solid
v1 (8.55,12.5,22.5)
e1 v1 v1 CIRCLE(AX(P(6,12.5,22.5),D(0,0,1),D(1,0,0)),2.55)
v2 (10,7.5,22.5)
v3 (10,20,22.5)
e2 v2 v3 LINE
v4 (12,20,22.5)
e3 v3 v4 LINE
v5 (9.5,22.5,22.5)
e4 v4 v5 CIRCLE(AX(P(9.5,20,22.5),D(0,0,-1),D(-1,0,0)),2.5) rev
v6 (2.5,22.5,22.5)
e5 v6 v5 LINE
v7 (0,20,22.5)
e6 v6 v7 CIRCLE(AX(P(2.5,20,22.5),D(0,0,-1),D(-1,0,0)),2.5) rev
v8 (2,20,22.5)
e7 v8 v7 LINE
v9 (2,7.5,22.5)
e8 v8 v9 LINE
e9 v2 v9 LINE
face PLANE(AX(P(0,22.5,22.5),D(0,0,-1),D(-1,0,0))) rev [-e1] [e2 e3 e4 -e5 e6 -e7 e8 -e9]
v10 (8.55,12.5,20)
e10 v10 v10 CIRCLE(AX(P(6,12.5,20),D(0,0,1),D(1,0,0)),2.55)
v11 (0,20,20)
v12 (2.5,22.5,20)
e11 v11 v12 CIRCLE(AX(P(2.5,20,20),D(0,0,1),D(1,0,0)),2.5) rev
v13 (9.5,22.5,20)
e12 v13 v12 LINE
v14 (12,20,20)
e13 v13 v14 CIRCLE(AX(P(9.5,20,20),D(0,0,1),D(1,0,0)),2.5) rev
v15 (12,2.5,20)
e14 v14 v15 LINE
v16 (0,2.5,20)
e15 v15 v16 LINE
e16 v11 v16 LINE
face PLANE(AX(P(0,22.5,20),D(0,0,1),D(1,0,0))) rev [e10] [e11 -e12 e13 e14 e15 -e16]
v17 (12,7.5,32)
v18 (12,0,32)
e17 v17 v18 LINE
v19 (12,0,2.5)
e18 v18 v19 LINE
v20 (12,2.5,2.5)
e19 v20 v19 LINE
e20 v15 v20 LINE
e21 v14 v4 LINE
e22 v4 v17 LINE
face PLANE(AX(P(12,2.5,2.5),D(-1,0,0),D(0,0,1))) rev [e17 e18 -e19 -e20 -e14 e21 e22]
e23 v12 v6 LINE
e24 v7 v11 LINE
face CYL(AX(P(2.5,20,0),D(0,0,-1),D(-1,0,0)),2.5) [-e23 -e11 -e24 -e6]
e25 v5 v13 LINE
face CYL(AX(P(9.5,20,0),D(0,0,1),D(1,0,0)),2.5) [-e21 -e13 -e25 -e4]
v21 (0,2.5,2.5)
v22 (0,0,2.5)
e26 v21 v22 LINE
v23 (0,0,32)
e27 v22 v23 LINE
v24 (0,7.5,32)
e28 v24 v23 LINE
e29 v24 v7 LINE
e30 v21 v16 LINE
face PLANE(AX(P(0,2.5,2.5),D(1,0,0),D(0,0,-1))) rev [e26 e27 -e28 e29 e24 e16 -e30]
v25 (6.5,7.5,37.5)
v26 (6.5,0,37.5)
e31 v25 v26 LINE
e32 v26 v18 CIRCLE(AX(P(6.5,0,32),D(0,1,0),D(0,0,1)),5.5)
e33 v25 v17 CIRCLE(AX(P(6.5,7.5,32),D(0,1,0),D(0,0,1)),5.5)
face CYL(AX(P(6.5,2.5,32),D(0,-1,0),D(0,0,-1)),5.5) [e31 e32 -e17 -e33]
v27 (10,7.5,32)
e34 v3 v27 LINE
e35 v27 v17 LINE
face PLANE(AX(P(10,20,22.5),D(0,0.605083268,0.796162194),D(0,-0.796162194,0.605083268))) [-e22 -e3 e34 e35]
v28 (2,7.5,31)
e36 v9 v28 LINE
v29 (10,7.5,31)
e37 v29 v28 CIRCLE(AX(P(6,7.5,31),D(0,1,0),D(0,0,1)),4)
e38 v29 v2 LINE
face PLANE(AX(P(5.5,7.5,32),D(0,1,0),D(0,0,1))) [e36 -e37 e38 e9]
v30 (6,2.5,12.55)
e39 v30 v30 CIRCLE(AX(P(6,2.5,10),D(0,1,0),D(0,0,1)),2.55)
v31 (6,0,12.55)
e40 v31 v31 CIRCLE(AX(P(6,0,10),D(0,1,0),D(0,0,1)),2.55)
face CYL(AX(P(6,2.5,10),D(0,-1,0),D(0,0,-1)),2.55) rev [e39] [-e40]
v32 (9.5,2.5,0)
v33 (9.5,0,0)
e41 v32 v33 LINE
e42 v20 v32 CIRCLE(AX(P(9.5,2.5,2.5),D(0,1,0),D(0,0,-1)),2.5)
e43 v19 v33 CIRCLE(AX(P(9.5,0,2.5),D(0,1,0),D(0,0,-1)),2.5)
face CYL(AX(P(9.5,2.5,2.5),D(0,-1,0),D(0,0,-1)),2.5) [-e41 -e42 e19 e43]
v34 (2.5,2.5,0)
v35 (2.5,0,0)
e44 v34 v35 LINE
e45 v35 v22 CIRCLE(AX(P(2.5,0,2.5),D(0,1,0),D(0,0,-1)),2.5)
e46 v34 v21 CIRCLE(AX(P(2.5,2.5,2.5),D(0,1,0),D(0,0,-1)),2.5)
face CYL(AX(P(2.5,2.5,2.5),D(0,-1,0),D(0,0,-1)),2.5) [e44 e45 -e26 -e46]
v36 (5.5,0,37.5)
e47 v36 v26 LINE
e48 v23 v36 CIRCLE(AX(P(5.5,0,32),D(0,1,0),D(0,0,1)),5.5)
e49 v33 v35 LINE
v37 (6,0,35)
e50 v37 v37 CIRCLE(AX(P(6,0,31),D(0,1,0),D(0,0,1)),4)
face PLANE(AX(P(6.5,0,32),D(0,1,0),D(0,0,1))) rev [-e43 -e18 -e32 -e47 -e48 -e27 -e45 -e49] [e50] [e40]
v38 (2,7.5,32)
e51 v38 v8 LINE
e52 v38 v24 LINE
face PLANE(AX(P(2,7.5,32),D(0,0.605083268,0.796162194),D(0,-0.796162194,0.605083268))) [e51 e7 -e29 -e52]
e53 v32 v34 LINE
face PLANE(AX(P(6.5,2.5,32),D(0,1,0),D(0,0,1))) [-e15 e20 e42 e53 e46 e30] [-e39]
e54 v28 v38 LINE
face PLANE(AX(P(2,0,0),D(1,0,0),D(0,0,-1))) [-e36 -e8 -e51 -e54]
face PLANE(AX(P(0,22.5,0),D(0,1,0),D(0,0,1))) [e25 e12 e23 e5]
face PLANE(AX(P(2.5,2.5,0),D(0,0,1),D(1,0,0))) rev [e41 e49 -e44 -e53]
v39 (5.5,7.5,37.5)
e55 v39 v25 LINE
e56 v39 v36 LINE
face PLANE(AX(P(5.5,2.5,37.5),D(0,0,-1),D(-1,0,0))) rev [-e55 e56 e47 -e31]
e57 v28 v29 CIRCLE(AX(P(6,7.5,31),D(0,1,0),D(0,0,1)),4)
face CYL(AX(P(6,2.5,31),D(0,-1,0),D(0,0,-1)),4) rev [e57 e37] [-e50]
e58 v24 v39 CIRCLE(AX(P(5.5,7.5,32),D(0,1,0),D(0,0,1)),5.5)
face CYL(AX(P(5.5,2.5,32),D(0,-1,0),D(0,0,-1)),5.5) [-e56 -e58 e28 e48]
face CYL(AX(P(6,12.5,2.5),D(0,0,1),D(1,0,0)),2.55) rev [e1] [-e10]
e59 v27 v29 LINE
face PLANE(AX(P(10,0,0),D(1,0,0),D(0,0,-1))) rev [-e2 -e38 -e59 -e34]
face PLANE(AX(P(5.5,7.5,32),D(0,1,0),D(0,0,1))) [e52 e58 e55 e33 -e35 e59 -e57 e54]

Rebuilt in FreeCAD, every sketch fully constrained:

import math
import FreeCAD as App
import Part
import Sketcher
from FreeCAD import Vector


def edges_at(feature, points):
    """Names of the edges that pass closest to the given points."""
    edges = feature.Shape.Edges
    near = lambda p: min(range(len(edges)), key=lambda i: edges[i].distToShape(Part.Vertex(*p))[0])
    return sorted({f"Edge{near(p) + 1}" for p in points})

doc = App.newDocument("Part")
body = doc.addObject("PartDesign::Body", "Body")

sketch1 = body.newObject("Sketcher::SketchObject", "Sketch")
sketch1.AttachmentSupport = (doc.getObject("XZ_Plane"), [""])
sketch1.MapMode = "FlatFace"
sketch1.addGeometry([
    Part.LineSegment(Vector(9.5, 0, 0), Vector(2.5, 0, 0)),
    Part.ArcOfCircle(Part.Circle(Vector(2.5, 2.5, 0), Vector(0, 0, 1), 2.5), math.radians(180), math.radians(270)),
    Part.LineSegment(Vector(0, 2.5, 0), Vector(0, 32, 0)),
    Part.ArcOfCircle(Part.Circle(Vector(5.5, 32, 0), Vector(0, 0, 1), 5.5), math.radians(90), math.radians(180)),
    Part.LineSegment(Vector(5.5, 37.5, 0), Vector(6.5, 37.5, 0)),
    Part.ArcOfCircle(Part.Circle(Vector(6.5, 32, 0), Vector(0, 0, 1), 5.5), math.radians(0), math.radians(90)),
    Part.LineSegment(Vector(12, 32, 0), Vector(12, 2.5, 0)),
    Part.ArcOfCircle(Part.Circle(Vector(9.5, 2.5, 0), Vector(0, 0, 1), 2.5), math.radians(-90), math.radians(0)),
    Part.Circle(Vector(6, 31, 0), Vector(0, 0, 1), 4),
    Part.Circle(Vector(6, 10, 0), Vector(0, 0, 1), 2.55),
], False)
sketch1.addConstraint([
    Sketcher.Constraint("Tangent", 0, 2, 1, 2),
    Sketcher.Constraint("Tangent", 1, 1, 2, 1),
    Sketcher.Constraint("Tangent", 2, 2, 3, 2),
    Sketcher.Constraint("Tangent", 3, 1, 4, 1),
    Sketcher.Constraint("Tangent", 4, 2, 5, 2),
    Sketcher.Constraint("Tangent", 5, 1, 6, 1),
    Sketcher.Constraint("Tangent", 6, 2, 7, 2),
    Sketcher.Constraint("Tangent", 7, 1, 0, 1),
    Sketcher.Constraint("Horizontal", 0),
    Sketcher.Constraint("Vertical", 2),
    Sketcher.Constraint("Horizontal", 4),
    Sketcher.Constraint("Vertical", 6),
    Sketcher.Constraint("Equal", 3, 5),
    Sketcher.Constraint("Equal", 1, 7),
    Sketcher.Constraint("PointOnObject", 0, 2, -1),
    Sketcher.Constraint("PointOnObject", 1, 1, -2),
    Sketcher.Constraint("Vertical", 8, 3, 9, 3),
    Sketcher.Constraint("Diameter", 8, 8.0),
    Sketcher.Constraint("Diameter", 9, 5.1),
    Sketcher.Constraint("Radius", 1, 2.5),
    Sketcher.Constraint("Radius", 3, 5.5),
    Sketcher.Constraint("DistanceX", 0, 2, 0, 1, 7.0),
    Sketcher.Constraint("DistanceY", 2, 1, 2, 2, 29.5),
    Sketcher.Constraint("DistanceX", -1, 1, 8, 3, 6.0),
    Sketcher.Constraint("DistanceY", -1, 1, 8, 3, 31.0),
    Sketcher.Constraint("DistanceY", -1, 1, 9, 3, 10.0),
])
pad1 = body.newObject("PartDesign::Pad", "Pad")
pad1.Profile = sketch1
pad1.Length = 2.5
pad1.Reversed = True

sketch2 = body.newObject("Sketcher::SketchObject", "Sketch001")
sketch2.AttachmentSupport = (doc.getObject("XZ_Plane"), [""])
sketch2.MapMode = "FlatFace"
sketch2.AttachmentOffset = App.Placement(Vector(0, 0, -2.5), App.Rotation())
sketch2.addGeometry([
    Part.LineSegment(Vector(0, 20, 0), Vector(0, 22.5, 0)),
    Part.LineSegment(Vector(0, 22.5, 0), Vector(12, 22.5, 0)),
    Part.LineSegment(Vector(12, 22.5, 0), Vector(12, 20, 0)),
    Part.LineSegment(Vector(12, 20, 0), Vector(0, 20, 0)),
], False)
sketch2.addConstraint([
    Sketcher.Constraint("Coincident", 0, 2, 1, 1),
    Sketcher.Constraint("Coincident", 1, 2, 2, 1),
    Sketcher.Constraint("Coincident", 2, 2, 3, 1),
    Sketcher.Constraint("Coincident", 3, 2, 0, 1),
    Sketcher.Constraint("Vertical", 0),
    Sketcher.Constraint("Horizontal", 1),
    Sketcher.Constraint("Vertical", 2),
    Sketcher.Constraint("Horizontal", 3),
    Sketcher.Constraint("PointOnObject", 0, 2, -2),
    Sketcher.Constraint("DistanceX", 1, 1, 1, 2, 12.0),
    Sketcher.Constraint("DistanceY", 0, 1, 0, 2, 2.5),
    Sketcher.Constraint("DistanceY", -1, 1, 2, 2, 20.0),
])
pad2 = body.newObject("PartDesign::Pad", "Pad001")
pad2.Profile = sketch2
pad2.Length = 20
pad2.Reversed = True

sketch3 = body.newObject("Sketcher::SketchObject", "Sketch002")
sketch3.AttachmentSupport = (doc.getObject("XY_Plane"), [""])
sketch3.MapMode = "FlatFace"
sketch3.AttachmentOffset = App.Placement(Vector(0, 0, 22.5), App.Rotation())
sketch3.addGeometry(Part.Circle(Vector(6, 12.5, 0), Vector(0, 0, 1), 2.55), False)
sketch3.addConstraint([
    Sketcher.Constraint("Diameter", 0, 5.1),
    Sketcher.Constraint("DistanceX", -1, 1, 0, 3, 6.0),
    Sketcher.Constraint("DistanceY", -1, 1, 0, 3, 12.5),
])
pocket1 = body.newObject("PartDesign::Pocket", "Pocket")
pocket1.Profile = sketch3
pocket1.Length = 20
doc.recompute()

fillet = body.newObject("PartDesign::Fillet", "Fillet")
fillet.Base = (pocket1, edges_at(pocket1, [(0, 22.5, 21.25), (12, 22.5, 21.25)]))
fillet.Radius = 2.5

sketch4 = body.newObject("Sketcher::SketchObject", "Sketch003")
sketch4.AttachmentSupport = (doc.getObject("XZ_Plane"), [""])
sketch4.MapMode = "FlatFace"
sketch4.AttachmentOffset = App.Placement(Vector(0, 0, -2.5), App.Rotation())
sketch4.addGeometry([
    Part.LineSegment(Vector(12, 22.5, 0), Vector(0, 22.5, 0)),
    Part.LineSegment(Vector(0, 22.5, 0), Vector(0, 32, 0)),
    Part.ArcOfCircle(Part.Circle(Vector(5.5, 32, 0), Vector(0, 0, 1), 5.5), math.radians(90), math.radians(180)),
    Part.LineSegment(Vector(5.5, 37.5, 0), Vector(6.5, 37.5, 0)),
    Part.ArcOfCircle(Part.Circle(Vector(6.5, 32, 0), Vector(0, 0, 1), 5.5), math.radians(0), math.radians(90)),
    Part.LineSegment(Vector(12, 32, 0), Vector(12, 22.5, 0)),
], False)
sketch4.addConstraint([
    Sketcher.Constraint("Coincident", 0, 2, 1, 1),
    Sketcher.Constraint("Tangent", 1, 2, 2, 2),
    Sketcher.Constraint("Tangent", 2, 1, 3, 1),
    Sketcher.Constraint("Tangent", 3, 2, 4, 2),
    Sketcher.Constraint("Tangent", 4, 1, 5, 1),
    Sketcher.Constraint("Coincident", 5, 2, 0, 1),
    Sketcher.Constraint("Horizontal", 0),
    Sketcher.Constraint("Vertical", 1),
    Sketcher.Constraint("Horizontal", 3),
    Sketcher.Constraint("Vertical", 5),
    Sketcher.Constraint("Equal", 2, 4),
    Sketcher.Constraint("PointOnObject", 0, 2, -2),
    Sketcher.Constraint("Radius", 2, 5.5),
    Sketcher.Constraint("DistanceX", 0, 2, 0, 1, 12.0),
    Sketcher.Constraint("DistanceY", 1, 1, 1, 2, 9.5),
    Sketcher.Constraint("DistanceY", -1, 1, 2, 3, 32.0),
])
pad3 = body.newObject("PartDesign::Pad", "Pad002")
pad3.Profile = sketch4
pad3.Length = 5
pad3.Reversed = True

sketch5 = body.newObject("Sketcher::SketchObject", "Sketch004")
sketch5.AttachmentSupport = (doc.getObject("YZ_Plane"), [""])
sketch5.MapMode = "FlatFace"
sketch5.AttachmentOffset = App.Placement(Vector(0, 0, 12), App.Rotation())
sketch5.addGeometry([
    Part.LineSegment(Vector(7.5, 32, 0), Vector(7.5, 22.5, 0)),
    Part.LineSegment(Vector(7.5, 22.5, 0), Vector(20, 22.5, 0)),
    Part.LineSegment(Vector(20, 22.5, 0), Vector(7.5, 32, 0)),
], False)
sketch5.addConstraint([
    Sketcher.Constraint("Coincident", 0, 2, 1, 1),
    Sketcher.Constraint("Coincident", 1, 2, 2, 1),
    Sketcher.Constraint("Coincident", 2, 2, 0, 1),
    Sketcher.Constraint("Vertical", 0),
    Sketcher.Constraint("Horizontal", 1),
    Sketcher.Constraint("DistanceX", 1, 1, 1, 2, 12.5),
    Sketcher.Constraint("DistanceY", 0, 2, 0, 1, 9.5),
    Sketcher.Constraint("DistanceX", -1, 1, 1, 2, 20.0),
    Sketcher.Constraint("DistanceY", -1, 1, 2, 2, 32.0),
])
pad4 = body.newObject("PartDesign::Pad", "Pad003")
pad4.Profile = sketch5
pad4.Length = 2
pad4.Reversed = True

sketch6 = body.newObject("Sketcher::SketchObject", "Sketch005")
sketch6.AttachmentSupport = (doc.getObject("YZ_Plane"), [""])
sketch6.MapMode = "FlatFace"
sketch6.addGeometry([
    Part.LineSegment(Vector(7.5, 32, 0), Vector(20, 22.5, 0)),
    Part.LineSegment(Vector(20, 22.5, 0), Vector(7.5, 22.5, 0)),
    Part.LineSegment(Vector(7.5, 22.5, 0), Vector(7.5, 32, 0)),
], False)
sketch6.addConstraint([
    Sketcher.Constraint("Coincident", 0, 2, 1, 1),
    Sketcher.Constraint("Coincident", 1, 2, 2, 1),
    Sketcher.Constraint("Coincident", 2, 2, 0, 1),
    Sketcher.Constraint("Horizontal", 1),
    Sketcher.Constraint("Vertical", 2),
    Sketcher.Constraint("DistanceX", 1, 2, 1, 1, 12.5),
    Sketcher.Constraint("DistanceY", 2, 1, 2, 2, 9.5),
    Sketcher.Constraint("DistanceX", -1, 1, 0, 2, 20.0),
    Sketcher.Constraint("DistanceY", -1, 1, 2, 2, 32.0),
])
pad5 = body.newObject("PartDesign::Pad", "Pad004")
pad5.Profile = sketch6
pad5.Length = 2

sketch7 = body.newObject("Sketcher::SketchObject", "Sketch006")
sketch7.AttachmentSupport = (doc.getObject("XZ_Plane"), [""])
sketch7.MapMode = "FlatFace"
sketch7.AttachmentOffset = App.Placement(Vector(0, 0, -2.5), App.Rotation())
sketch7.addGeometry(Part.Circle(Vector(6, 31, 0), Vector(0, 0, 1), 4), False)
sketch7.addConstraint([
    Sketcher.Constraint("Diameter", 0, 8.0),
    Sketcher.Constraint("DistanceX", -1, 1, 0, 3, 6.0),
    Sketcher.Constraint("DistanceY", -1, 1, 0, 3, 31.0),
])
pocket2 = body.newObject("PartDesign::Pocket", "Pocket001")
pocket2.Profile = sketch7
pocket2.Type = "ThroughAll"

doc.recompute()
